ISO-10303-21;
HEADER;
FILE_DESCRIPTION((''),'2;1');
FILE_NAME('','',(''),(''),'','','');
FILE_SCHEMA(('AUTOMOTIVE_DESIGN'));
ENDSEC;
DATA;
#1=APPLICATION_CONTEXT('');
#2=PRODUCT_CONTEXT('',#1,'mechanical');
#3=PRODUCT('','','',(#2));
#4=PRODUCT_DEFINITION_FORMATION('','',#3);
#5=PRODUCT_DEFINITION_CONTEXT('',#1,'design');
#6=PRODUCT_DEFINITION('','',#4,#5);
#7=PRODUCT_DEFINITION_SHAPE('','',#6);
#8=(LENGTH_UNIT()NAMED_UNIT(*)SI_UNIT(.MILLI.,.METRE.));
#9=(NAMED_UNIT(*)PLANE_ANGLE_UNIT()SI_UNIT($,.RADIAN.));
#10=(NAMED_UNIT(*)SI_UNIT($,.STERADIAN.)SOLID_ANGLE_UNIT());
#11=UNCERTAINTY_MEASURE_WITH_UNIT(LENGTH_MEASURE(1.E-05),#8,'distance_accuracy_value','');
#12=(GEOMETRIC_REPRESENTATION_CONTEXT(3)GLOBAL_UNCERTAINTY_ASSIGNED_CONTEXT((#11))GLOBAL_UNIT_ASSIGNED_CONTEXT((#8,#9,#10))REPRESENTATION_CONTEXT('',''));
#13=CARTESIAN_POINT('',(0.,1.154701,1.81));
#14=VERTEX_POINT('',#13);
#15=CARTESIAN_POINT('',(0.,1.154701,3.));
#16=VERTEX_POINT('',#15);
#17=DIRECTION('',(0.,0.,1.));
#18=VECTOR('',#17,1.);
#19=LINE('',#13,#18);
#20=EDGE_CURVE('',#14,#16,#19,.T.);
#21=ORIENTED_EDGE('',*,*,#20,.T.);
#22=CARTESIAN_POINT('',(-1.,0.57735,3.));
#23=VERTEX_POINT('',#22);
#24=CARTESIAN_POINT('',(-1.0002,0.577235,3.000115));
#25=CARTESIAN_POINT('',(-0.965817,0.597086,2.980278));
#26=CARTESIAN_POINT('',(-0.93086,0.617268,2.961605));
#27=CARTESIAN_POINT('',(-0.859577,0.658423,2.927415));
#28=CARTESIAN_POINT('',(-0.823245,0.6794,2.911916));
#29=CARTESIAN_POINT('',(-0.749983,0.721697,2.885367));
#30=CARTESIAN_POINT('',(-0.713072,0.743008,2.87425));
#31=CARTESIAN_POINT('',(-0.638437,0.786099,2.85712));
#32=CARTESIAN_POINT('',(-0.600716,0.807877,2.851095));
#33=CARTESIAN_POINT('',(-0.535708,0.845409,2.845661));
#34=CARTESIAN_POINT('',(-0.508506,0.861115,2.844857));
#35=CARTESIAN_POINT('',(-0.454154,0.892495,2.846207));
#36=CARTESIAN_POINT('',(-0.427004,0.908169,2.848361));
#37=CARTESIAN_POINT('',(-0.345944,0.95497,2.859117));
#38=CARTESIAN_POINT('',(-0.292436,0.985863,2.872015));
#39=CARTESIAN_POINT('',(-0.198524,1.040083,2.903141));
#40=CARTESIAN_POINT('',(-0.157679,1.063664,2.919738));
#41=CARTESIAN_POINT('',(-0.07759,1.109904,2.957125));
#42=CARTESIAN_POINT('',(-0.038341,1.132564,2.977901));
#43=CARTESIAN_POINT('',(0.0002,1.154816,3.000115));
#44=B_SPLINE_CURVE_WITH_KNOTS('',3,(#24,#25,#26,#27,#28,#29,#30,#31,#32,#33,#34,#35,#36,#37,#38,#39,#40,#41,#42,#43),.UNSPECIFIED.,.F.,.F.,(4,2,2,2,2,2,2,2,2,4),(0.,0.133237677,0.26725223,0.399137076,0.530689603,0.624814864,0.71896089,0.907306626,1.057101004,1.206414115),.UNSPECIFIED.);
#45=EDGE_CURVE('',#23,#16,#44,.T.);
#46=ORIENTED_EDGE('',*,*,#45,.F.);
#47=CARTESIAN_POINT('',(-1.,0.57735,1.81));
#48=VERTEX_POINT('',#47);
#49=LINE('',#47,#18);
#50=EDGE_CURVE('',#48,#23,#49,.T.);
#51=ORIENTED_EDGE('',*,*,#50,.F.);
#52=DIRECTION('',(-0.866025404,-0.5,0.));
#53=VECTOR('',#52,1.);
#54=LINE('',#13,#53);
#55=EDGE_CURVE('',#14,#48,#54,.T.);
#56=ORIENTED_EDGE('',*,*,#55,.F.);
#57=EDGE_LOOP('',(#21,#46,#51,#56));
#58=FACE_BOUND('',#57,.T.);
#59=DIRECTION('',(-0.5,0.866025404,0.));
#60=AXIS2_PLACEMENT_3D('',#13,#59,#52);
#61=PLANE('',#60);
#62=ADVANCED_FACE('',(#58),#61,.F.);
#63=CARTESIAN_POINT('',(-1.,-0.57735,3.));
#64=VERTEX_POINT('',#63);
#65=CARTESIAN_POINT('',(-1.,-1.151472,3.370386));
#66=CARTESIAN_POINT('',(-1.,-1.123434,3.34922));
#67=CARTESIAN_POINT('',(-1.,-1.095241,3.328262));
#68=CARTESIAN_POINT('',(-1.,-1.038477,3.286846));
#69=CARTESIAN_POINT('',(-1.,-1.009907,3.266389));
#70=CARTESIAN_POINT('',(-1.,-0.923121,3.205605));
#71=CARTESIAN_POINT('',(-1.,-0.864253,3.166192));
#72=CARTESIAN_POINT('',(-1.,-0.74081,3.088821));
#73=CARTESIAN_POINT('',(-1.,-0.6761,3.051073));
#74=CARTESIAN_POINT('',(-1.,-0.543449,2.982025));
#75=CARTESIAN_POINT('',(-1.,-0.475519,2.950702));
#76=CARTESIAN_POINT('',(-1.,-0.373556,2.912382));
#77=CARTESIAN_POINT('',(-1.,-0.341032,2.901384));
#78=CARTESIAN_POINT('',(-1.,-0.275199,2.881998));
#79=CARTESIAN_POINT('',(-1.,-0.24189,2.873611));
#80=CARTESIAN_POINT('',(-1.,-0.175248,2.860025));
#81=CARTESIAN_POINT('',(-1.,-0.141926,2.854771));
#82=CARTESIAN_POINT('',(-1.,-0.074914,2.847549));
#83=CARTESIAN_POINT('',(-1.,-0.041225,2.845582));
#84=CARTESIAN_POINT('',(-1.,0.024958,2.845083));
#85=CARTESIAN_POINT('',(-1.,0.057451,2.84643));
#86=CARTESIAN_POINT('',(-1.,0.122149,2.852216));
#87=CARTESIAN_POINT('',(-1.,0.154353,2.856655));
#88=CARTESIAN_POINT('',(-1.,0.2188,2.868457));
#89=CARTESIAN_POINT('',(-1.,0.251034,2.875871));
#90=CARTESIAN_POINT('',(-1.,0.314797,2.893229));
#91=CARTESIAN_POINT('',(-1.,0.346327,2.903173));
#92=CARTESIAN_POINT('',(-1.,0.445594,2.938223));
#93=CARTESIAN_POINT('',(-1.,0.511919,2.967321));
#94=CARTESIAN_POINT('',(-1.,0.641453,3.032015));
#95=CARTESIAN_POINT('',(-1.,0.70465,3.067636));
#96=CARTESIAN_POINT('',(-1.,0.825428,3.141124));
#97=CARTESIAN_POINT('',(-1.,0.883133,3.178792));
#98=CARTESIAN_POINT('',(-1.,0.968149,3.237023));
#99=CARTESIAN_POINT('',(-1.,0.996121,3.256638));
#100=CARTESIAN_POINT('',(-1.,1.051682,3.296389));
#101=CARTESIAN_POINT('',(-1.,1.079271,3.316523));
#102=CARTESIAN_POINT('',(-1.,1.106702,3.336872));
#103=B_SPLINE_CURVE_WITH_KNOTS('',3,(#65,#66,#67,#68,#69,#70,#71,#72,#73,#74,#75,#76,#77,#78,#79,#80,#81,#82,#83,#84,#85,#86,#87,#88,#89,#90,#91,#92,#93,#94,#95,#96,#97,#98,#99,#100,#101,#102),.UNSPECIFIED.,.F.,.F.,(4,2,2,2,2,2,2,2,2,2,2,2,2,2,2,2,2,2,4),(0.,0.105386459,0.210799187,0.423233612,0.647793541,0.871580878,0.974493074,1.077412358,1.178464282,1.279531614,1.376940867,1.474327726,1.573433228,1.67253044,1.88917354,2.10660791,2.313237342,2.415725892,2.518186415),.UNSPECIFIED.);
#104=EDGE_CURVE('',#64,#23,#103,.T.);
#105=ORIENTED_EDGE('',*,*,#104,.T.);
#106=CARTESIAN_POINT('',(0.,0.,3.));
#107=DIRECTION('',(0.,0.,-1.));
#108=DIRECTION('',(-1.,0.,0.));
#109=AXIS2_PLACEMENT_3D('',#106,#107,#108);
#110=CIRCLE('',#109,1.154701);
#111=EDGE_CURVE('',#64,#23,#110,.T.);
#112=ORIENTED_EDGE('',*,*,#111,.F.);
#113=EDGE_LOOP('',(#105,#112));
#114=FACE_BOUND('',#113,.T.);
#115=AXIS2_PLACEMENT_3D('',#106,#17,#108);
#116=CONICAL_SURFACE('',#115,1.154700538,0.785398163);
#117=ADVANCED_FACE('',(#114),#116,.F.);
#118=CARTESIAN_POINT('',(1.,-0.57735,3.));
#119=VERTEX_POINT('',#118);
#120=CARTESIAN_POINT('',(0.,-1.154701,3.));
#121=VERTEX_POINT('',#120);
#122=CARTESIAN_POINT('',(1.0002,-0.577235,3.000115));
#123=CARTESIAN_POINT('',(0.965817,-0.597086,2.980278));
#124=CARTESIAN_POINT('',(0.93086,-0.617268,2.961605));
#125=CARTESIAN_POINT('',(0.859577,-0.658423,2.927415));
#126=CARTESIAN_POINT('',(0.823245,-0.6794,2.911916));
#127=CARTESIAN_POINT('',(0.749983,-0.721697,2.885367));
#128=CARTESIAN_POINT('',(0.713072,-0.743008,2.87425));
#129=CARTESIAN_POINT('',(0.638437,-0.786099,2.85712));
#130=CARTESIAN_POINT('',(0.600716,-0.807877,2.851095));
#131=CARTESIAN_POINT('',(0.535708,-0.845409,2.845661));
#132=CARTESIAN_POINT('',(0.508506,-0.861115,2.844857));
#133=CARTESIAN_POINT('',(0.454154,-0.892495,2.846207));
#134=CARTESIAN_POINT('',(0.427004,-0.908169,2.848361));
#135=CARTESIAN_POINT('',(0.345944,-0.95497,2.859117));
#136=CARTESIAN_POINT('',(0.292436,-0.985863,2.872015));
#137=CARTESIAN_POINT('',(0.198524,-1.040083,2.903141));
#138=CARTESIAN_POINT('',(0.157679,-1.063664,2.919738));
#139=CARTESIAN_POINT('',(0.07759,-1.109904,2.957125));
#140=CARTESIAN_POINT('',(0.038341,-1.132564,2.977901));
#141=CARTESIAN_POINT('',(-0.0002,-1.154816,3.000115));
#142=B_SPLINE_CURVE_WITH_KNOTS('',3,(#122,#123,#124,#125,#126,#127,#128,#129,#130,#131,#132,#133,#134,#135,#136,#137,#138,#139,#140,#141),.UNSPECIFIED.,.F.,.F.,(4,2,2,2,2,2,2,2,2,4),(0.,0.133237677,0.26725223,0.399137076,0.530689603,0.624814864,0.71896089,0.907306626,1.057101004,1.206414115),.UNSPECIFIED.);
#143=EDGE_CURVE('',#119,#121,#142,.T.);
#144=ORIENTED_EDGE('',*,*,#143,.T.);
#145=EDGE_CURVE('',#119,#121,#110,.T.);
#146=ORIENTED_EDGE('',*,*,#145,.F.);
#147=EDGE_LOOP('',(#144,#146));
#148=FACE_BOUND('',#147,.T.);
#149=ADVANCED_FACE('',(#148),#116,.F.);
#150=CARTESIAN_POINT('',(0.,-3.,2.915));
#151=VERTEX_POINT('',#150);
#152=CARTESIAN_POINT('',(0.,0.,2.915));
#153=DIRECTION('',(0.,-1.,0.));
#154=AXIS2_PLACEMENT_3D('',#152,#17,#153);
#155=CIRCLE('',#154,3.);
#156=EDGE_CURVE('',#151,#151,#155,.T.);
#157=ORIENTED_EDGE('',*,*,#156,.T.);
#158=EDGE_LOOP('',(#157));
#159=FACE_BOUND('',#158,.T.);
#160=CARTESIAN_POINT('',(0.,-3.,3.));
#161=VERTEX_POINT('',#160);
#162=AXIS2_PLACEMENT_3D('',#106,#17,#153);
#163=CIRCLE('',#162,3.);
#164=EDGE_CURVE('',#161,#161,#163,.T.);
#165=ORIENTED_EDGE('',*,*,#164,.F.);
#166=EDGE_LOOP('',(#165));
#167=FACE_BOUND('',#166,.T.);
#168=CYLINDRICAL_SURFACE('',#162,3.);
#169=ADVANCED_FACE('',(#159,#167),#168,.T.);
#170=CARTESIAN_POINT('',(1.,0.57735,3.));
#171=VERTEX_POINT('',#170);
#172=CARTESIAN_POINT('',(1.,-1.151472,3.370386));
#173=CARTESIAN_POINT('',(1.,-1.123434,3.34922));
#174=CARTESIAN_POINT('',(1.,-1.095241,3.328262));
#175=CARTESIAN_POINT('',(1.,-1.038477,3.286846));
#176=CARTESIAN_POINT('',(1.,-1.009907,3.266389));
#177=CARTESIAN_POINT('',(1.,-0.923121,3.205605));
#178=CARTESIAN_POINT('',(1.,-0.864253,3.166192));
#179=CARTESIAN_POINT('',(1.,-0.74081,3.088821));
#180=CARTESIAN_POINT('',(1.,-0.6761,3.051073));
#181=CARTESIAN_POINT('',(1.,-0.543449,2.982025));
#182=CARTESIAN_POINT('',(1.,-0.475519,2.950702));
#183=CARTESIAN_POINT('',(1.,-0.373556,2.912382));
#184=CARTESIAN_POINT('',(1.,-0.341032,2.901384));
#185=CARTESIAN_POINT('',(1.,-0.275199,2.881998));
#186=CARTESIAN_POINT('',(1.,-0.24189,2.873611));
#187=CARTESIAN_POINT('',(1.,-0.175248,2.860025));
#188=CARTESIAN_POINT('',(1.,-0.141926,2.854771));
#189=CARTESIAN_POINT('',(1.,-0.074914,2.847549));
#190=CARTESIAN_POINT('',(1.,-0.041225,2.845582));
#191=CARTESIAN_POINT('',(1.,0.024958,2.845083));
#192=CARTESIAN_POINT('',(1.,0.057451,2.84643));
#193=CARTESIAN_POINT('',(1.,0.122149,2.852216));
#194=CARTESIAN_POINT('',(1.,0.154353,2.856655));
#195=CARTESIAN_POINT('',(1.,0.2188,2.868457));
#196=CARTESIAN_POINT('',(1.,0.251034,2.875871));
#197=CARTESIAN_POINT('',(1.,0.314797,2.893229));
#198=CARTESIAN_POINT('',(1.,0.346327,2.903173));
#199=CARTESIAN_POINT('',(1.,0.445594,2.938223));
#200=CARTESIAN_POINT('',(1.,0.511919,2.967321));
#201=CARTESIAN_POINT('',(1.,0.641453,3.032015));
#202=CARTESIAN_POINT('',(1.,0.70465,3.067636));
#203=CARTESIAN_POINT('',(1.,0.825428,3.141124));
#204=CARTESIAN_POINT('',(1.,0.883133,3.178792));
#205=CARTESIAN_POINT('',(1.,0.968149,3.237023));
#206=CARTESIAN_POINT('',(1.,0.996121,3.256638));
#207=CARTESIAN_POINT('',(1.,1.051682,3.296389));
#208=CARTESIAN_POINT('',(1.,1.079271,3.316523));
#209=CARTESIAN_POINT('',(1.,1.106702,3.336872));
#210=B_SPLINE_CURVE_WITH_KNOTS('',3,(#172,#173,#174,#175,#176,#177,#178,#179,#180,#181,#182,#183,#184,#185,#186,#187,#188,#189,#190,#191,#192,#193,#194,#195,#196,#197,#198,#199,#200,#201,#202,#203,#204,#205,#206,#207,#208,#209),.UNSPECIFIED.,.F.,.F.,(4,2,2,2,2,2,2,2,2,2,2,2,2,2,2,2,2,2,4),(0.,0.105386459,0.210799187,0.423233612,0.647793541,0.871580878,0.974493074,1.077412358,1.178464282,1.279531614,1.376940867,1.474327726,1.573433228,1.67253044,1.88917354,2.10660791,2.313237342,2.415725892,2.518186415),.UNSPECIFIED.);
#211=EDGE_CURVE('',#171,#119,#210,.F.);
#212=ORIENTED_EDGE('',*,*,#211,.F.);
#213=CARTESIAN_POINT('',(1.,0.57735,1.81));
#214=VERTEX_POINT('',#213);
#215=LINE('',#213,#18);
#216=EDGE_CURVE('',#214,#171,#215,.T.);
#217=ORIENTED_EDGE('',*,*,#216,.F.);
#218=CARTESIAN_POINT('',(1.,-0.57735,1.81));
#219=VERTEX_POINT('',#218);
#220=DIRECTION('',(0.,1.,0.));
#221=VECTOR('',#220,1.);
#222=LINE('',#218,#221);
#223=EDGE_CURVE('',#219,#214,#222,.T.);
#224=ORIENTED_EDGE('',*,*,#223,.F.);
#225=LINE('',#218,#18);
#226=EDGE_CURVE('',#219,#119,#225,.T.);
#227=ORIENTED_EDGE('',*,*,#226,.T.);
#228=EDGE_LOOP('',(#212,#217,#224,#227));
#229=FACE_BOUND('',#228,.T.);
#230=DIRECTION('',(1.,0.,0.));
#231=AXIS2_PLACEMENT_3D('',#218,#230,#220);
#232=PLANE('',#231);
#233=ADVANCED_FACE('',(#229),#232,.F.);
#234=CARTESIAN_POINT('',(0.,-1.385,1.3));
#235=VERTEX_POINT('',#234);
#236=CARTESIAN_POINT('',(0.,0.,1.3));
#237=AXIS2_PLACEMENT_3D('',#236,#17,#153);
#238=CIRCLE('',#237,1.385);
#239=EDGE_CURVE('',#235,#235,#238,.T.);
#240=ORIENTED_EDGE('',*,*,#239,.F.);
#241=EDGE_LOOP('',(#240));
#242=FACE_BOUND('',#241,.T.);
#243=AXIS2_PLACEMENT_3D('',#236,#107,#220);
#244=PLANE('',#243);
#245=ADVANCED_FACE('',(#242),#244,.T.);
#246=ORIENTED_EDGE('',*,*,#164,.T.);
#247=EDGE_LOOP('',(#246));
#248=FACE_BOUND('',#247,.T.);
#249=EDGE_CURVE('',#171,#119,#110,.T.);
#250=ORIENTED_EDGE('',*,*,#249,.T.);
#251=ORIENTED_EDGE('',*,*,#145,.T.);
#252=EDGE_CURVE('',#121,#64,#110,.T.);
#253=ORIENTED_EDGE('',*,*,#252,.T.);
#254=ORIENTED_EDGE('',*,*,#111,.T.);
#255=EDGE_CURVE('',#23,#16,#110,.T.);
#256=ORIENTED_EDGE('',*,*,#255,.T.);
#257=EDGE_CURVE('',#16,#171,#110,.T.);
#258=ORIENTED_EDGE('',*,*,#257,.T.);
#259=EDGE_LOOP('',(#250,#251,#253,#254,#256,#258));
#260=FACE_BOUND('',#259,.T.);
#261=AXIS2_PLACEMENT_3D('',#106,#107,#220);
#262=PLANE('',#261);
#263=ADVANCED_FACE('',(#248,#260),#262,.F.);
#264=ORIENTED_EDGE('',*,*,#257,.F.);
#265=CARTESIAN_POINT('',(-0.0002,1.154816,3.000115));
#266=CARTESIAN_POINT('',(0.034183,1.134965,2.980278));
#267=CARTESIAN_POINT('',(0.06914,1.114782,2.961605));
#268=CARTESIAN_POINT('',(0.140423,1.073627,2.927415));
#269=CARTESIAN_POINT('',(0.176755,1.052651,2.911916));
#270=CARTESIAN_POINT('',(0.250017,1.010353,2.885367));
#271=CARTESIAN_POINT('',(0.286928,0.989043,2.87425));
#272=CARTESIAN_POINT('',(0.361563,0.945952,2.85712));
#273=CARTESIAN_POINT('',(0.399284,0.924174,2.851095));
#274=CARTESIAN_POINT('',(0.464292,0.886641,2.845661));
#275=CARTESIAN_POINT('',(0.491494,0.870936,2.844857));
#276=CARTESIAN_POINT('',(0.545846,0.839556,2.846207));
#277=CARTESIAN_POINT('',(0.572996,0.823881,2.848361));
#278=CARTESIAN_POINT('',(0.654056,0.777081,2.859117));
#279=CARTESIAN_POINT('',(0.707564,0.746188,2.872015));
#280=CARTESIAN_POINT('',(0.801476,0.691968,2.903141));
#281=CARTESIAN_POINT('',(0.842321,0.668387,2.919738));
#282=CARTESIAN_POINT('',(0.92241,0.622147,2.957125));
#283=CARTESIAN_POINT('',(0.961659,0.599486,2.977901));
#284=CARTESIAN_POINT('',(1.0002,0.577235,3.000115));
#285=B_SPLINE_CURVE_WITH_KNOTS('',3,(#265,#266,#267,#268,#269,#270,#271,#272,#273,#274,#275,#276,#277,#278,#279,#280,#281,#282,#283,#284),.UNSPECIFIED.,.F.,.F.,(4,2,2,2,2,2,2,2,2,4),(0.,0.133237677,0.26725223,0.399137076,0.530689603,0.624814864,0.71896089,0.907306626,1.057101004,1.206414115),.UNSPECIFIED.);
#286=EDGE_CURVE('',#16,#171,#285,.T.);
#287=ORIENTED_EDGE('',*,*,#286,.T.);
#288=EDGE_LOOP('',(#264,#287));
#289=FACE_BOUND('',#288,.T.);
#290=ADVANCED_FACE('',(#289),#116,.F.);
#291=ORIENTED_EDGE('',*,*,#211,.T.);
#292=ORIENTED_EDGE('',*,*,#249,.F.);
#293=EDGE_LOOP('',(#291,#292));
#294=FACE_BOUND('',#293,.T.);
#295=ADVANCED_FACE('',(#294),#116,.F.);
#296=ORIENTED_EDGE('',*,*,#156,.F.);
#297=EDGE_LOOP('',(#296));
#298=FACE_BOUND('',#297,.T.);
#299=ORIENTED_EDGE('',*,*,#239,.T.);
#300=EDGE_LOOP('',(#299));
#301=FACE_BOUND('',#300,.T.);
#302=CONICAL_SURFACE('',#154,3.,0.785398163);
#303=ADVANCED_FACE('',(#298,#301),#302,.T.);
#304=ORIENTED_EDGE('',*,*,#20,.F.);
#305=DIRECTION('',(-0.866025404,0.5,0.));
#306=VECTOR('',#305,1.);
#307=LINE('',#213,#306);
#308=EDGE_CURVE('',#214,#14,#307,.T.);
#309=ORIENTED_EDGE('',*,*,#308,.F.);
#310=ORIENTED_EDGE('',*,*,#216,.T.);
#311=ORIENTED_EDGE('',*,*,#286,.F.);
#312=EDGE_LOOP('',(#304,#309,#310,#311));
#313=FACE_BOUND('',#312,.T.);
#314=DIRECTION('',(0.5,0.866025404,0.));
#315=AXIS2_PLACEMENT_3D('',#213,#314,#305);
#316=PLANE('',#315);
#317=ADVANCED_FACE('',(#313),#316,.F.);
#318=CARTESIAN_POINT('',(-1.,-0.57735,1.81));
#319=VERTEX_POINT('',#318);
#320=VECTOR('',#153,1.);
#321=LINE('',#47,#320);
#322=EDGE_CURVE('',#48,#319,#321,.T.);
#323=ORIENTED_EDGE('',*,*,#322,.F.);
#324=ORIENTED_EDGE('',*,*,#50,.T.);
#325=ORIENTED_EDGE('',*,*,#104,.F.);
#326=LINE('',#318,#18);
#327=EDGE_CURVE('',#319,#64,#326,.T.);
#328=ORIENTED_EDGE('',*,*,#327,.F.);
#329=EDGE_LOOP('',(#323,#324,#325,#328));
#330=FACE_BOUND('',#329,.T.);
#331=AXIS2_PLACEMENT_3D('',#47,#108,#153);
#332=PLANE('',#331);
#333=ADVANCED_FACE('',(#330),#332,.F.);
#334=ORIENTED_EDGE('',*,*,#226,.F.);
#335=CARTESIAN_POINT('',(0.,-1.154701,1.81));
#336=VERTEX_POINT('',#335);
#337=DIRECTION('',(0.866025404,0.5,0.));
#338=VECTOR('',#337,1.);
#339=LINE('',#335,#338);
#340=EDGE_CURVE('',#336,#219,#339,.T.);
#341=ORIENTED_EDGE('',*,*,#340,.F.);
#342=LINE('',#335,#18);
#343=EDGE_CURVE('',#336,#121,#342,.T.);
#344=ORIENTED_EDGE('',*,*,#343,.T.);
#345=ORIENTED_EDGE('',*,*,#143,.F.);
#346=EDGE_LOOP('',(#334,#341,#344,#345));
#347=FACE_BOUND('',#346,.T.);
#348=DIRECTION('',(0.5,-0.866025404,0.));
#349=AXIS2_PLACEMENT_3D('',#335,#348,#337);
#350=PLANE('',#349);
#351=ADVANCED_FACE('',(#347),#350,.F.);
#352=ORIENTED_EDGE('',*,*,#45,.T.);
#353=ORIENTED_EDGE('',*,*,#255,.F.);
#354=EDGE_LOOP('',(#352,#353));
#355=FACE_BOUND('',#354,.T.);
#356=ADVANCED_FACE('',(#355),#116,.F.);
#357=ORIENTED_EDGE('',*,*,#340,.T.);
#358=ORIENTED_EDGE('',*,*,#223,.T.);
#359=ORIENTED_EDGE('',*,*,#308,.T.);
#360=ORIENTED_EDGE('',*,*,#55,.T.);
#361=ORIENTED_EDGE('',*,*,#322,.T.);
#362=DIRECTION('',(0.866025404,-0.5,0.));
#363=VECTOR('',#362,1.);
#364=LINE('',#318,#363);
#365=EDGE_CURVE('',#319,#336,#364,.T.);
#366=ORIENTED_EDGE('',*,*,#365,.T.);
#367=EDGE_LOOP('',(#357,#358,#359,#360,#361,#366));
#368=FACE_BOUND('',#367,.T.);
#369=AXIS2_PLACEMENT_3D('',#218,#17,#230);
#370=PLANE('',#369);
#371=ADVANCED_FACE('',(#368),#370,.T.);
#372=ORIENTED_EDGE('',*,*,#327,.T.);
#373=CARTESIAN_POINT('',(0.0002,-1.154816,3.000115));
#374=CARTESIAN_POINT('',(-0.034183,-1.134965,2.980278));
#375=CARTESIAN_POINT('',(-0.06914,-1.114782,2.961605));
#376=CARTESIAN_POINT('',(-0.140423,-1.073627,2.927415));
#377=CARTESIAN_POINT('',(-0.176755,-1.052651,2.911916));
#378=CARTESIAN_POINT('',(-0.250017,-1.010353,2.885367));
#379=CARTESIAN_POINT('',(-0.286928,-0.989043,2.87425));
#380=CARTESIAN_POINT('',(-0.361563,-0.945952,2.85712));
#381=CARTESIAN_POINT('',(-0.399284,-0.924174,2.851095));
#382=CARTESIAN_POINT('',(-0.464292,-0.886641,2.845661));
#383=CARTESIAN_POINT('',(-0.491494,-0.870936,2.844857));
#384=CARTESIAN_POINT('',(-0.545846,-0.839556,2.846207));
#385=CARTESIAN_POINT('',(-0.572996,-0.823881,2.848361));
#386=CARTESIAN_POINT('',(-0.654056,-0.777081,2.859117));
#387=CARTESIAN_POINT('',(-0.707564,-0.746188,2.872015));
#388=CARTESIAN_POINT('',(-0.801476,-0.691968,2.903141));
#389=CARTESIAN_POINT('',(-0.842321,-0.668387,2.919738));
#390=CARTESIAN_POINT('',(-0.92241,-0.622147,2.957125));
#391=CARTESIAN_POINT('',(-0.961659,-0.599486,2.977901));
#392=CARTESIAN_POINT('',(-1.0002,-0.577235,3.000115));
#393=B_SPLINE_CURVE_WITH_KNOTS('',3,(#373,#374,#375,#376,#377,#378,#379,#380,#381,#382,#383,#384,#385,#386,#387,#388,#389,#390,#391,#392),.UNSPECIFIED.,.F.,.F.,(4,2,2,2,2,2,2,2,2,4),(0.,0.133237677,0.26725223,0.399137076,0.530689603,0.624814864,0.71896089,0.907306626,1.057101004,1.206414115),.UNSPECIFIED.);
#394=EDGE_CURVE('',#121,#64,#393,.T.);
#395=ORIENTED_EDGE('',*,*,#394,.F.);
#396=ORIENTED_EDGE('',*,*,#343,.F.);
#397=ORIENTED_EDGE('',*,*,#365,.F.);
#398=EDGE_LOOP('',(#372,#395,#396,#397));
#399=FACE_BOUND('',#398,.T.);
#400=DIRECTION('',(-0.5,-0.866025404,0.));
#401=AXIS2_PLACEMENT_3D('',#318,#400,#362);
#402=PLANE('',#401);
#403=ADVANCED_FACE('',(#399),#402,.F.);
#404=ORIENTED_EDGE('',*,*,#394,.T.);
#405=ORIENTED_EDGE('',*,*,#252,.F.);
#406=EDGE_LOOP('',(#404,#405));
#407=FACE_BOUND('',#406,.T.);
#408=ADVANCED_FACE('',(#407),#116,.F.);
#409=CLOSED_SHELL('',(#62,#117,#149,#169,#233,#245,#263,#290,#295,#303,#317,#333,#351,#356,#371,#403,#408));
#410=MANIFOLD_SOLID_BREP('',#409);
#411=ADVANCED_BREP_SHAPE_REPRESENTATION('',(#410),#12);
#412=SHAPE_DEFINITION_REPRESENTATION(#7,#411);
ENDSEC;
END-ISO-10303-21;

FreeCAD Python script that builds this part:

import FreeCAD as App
import Part
import Sketcher
Q = App.Units.Quantity


def add_polygon(sketch, points):
    """Adds a closed chain of lines whose ends are joined by coincident constraints."""
    first, n = sketch.GeometryCount, len(points)
    for a, b in zip(points, points[1:] + points[:1]):
        sketch.addGeometry(Part.LineSegment(App.Vector(*a, 0), App.Vector(*b, 0)), False)
    for i in range(n):
        sketch.addConstraint(Sketcher.Constraint("Coincident", first + i, 2, first + (i + 1) % n, 1))

doc = App.newDocument("Part")
body = doc.addObject("PartDesign::Body", "Body")

sketch1 = doc.addObject("Sketcher::SketchObject", "Sketch")
body.addObject(sketch1)
sketch1.AttachmentSupport = (doc.YZ_Plane, [""])
sketch1.MapMode = "FlatFace"
add_polygon(sketch1, [(3, 2.92), (3, 3), (0, 3), (0, 1.3), (1.39, 1.3)])
sketch1.addConstraint([
    Sketcher.Constraint("Vertical", 0),
    Sketcher.Constraint("Horizontal", 1),
    Sketcher.Constraint("Vertical", 2),
    Sketcher.Constraint("Horizontal", 3),
    Sketcher.Constraint("PointOnObject", 1, 2, -2),
    Sketcher.Constraint("DistanceX", 1, 2, 1, 1, Q("3 mm")),
    Sketcher.Constraint("Angle", 4, Q("45 deg")),
    Sketcher.Constraint("DistanceY", 2, 2, 2, 1, Q("1.7 mm")),
    Sketcher.Constraint("DistanceY", -1, 1, 0, 2, Q("3 mm")),
    Sketcher.Constraint("DistanceX", 3, 1, 3, 2, Q("1.385 mm")),
])
revolution = doc.addObject("PartDesign::Revolution", "Revolution")
body.addObject(revolution)
revolution.Profile = sketch1
revolution.ReferenceAxis = (sketch1, ["V_Axis"])
revolution.Angle = 360

sketch2 = doc.addObject("Sketcher::SketchObject", "Sketch001")
body.addObject(sketch2)
sketch2.AttachmentSupport = (doc.XY_Plane, [""])
sketch2.MapMode = "FlatFace"
sketch2.AttachmentOffset = App.Placement(App.Vector(0, 0, 3), App.Rotation())
add_polygon(sketch2, [(1, -0.6), (1, 0.6), (0, 1.2), (-1, 0.6), (-1, -0.6), (0, -1.2)])
sketch2.addConstraint([
    Sketcher.Constraint("Vertical", 0),
    Sketcher.Constraint("Vertical", 3),
    Sketcher.Constraint("Symmetric", 0, 2, 3, 2, -1, 1),
    Sketcher.Constraint("Symmetric", 1, 2, 4, 2, -1, 1),
    Sketcher.Constraint("PointOnObject", 1, 2, -2),
    Sketcher.Constraint("Parallel", 2, 5),
    Sketcher.Constraint("Horizontal", 0, 2, 2, 2),
    Sketcher.Constraint("Angle", 1, Q("150 deg")),
    Sketcher.Constraint("DistanceX", -1, 1, 0, 2, Q("1 mm")),
    Sketcher.Constraint("DistanceY", 0, 1, 0, 2, Q("1.154701 mm")),
])
pocket1 = doc.addObject("PartDesign::Pocket", "Pocket")
body.addObject(pocket1)
pocket1.Profile = sketch2
pocket1.Length = 1.19

sketch3 = doc.addObject("Sketcher::SketchObject", "Sketch002")
body.addObject(sketch3)
sketch3.AttachmentSupport = (doc.YZ_Plane, [""])
sketch3.MapMode = "FlatFace"
add_polygon(sketch3, [(0, 3), (-1.2, 3), (0, 1.8)])
sketch3.addConstraint([
    Sketcher.Constraint("Horizontal", 0),
    Sketcher.Constraint("Vertical", 2),
    Sketcher.Constraint("PointOnObject", 1, 2, -2),
    Sketcher.Constraint("Equal", 0, 2),
    Sketcher.Constraint("DistanceY", -1, 1, 0, 2, Q("3 mm")),
    Sketcher.Constraint("DistanceX", 0, 2, 0, 1, Q("1.154701 mm")),
])
groove = doc.addObject("PartDesign::Groove", "Groove")
body.addObject(groove)
groove.Profile = sketch3
groove.ReferenceAxis = (sketch3, ["V_Axis"])
groove.Angle = 360

doc.recompute()
